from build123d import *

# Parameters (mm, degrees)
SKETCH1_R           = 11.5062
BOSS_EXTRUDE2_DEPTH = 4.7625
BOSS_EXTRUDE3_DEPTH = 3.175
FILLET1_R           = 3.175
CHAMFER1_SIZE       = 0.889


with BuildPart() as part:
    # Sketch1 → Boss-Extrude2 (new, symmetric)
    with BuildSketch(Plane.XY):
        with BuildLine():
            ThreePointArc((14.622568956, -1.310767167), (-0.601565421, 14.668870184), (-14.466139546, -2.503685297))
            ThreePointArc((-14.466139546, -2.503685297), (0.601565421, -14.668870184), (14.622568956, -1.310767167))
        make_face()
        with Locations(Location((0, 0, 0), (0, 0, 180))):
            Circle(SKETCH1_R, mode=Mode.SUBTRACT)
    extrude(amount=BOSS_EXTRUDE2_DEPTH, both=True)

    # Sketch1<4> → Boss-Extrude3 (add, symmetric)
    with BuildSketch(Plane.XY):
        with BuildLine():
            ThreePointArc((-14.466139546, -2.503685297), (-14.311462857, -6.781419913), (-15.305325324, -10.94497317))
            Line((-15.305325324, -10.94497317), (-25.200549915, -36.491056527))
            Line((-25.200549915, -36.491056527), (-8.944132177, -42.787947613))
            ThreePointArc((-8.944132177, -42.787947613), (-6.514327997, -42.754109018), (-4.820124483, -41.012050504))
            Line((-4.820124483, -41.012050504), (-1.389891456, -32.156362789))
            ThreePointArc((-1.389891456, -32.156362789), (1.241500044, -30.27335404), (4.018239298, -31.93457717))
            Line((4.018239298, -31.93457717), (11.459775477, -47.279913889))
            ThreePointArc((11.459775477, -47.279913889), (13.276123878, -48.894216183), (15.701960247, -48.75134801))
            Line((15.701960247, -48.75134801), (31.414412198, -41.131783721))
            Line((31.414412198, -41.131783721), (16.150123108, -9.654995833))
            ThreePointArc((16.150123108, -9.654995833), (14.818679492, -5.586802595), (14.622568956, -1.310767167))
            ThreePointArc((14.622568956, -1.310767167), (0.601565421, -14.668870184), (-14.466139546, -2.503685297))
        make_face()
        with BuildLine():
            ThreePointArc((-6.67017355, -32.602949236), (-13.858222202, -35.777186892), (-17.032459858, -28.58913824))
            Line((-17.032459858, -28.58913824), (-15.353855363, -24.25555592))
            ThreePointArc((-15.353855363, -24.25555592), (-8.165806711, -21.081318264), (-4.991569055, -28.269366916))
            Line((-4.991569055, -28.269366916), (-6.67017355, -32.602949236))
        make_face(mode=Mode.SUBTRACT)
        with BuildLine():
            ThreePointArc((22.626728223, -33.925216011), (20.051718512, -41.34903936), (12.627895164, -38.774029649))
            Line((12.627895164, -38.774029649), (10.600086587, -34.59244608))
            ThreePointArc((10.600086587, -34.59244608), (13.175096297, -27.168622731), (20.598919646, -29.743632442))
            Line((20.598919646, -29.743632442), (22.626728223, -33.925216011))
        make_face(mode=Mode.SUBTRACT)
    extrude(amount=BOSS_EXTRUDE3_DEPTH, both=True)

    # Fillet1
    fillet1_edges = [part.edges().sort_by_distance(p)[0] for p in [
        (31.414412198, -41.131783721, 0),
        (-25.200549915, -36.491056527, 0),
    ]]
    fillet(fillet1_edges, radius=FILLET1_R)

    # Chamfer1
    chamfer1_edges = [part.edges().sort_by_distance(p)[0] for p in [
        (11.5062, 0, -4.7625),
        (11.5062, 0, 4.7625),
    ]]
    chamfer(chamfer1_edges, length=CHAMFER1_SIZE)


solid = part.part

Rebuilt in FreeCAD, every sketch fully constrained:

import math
import FreeCAD as App
import Part
import Sketcher
from FreeCAD import Vector
Q = App.Units.Quantity


def edges_at(feature, points):
    """Names of the edges that pass closest to the given points."""
    edges = feature.Shape.Edges
    near = lambda p: min(range(len(edges)), key=lambda i: edges[i].distToShape(Part.Vertex(*p))[0])
    return sorted({f"Edge{near(p) + 1}" for p in points})

doc = App.newDocument("Part")
body = doc.addObject("PartDesign::Body", "Body")

sketch1 = doc.addObject("Sketcher::SketchObject", "Sketch")
body.addObject(sketch1)
sketch1.AttachmentSupport = (doc.XY_Plane, [""])
sketch1.MapMode = "FlatFace"
sketch1.addGeometry([
    Part.ArcOfCircle(Part.Circle(Vector(0, 0, 0), Vector(0, 0, 1), 15), math.radians(-5), math.radians(190)),
    Part.ArcOfCircle(Part.Circle(Vector(0, 0, 0), Vector(0, 0, 1), 15), math.radians(-170), math.radians(-5)),
    Part.Circle(Vector(0, 0, 0), Vector(0, 0, 1), 12),
], False)
sketch1.addConstraint([
    Sketcher.Constraint("Tangent", 0, 1, 1, 2),
    Sketcher.Constraint("Coincident", 1, 1, 0, 2),
    Sketcher.Constraint("Coincident", 0, 3, -1, 1),
    Sketcher.Constraint("Coincident", 2, 3, -1, 1),
    Sketcher.Constraint("Diameter", 2, Q("0.906 in")),
    Sketcher.Constraint("Radius", 0, Q("0.578 in")),
    Sketcher.Constraint("DistanceX", -1, 1, 0, 1, Q("14.622569 mm")),
    Sketcher.Constraint("DistanceX", 1, 1, -1, 1, Q("14.46614 mm")),
])
pad1 = doc.addObject("PartDesign::Pad", "Pad")
body.addObject(pad1)
pad1.Profile = sketch1
pad1.Length = Q("0.375 in")
pad1.Midplane = True

sketch2 = doc.addObject("Sketcher::SketchObject", "Sketch001")
body.addObject(sketch2)
sketch2.AttachmentSupport = (doc.XY_Plane, [""])
sketch2.MapMode = "FlatFace"
sketch2.addGeometry([
    Part.ArcOfCircle(Part.Circle(Vector(-30.108591, -5.210957, 0), Vector(0, 0, 1), 15.875), math.radians(-21.173778), math.radians(9.819033)),
    Part.LineSegment(Vector(-15.305325, -10.944973, 0), Vector(-25.20055, -36.491057, 0)),
    Part.LineSegment(Vector(-25.20055, -36.491057, 0), Vector(-8.944132, -42.787948, 0)),
    Part.ArcOfCircle(Part.Circle(Vector(-7.770077, -39.837995, 0), Vector(0, 0, 1), 3.175), math.radians(-111.702124), math.radians(-21.702124)),
    Part.LineSegment(Vector(-4.820124, -41.012051, 0), Vector(-1.389891, -32.156363, 0)),
    Part.ArcOfCircle(Part.Circle(Vector(1.362442, -33.222474, 0), Vector(0, 0, 1), 2.951599), math.radians(25.870507), math.radians(158.826222)),
    Part.LineSegment(Vector(4.018239, -31.934577, 0), Vector(11.459775, -47.279914, 0)),
    Part.ArcOfCircle(Part.Circle(Vector(14.316585, -45.894539, 0), Vector(0, 0, 1), 3.175), math.radians(-154.129493), math.radians(-64.129493)),
    Part.LineSegment(Vector(15.70196, -48.751348, 0), Vector(31.414412, -41.131784, 0)),
    Part.LineSegment(Vector(31.414412, -41.131784, 0), Vector(16.150123, -9.654996, 0)),
    Part.ArcOfCircle(Part.Circle(Vector(30.43417, -2.728119, 0), Vector(0, 0, 1), 15.875), math.radians(174.877697), math.radians(205.870507)),
    Part.ArcOfCircle(Part.Circle(Vector(0, 0, 0), Vector(0, 0, 1), 14.6812), math.radians(-170.180967), math.radians(-5.122303)),
    Part.LineSegment(Vector(20.59892, -29.743632, 0), Vector(22.626728, -33.925216, 0)),
    Part.ArcOfCircle(Part.Circle(Vector(17.627312, -36.349623, 0), Vector(0, 0, 1), 5.55625), math.radians(-154.129493), math.radians(25.870507)),
    Part.LineSegment(Vector(12.627895, -38.77403, 0), Vector(10.600087, -34.592446, 0)),
    Part.ArcOfCircle(Part.Circle(Vector(15.599503, -32.168039, 0), Vector(0, 0, 1), 5.55625), math.radians(25.870507), math.radians(205.870507)),
    Part.LineSegment(Vector(-4.991569, -28.269367, 0), Vector(-6.670174, -32.602949, 0)),
    Part.ArcOfCircle(Part.Circle(Vector(-11.851317, -30.596044, 0), Vector(0, 0, 1), 5.55625), math.radians(158.826222), math.radians(338.826222)),
    Part.LineSegment(Vector(-17.03246, -28.589138, 0), Vector(-15.353855, -24.255556, 0)),
    Part.ArcOfCircle(Part.Circle(Vector(-10.172712, -26.262461, 0), Vector(0, 0, 1), 5.55625), math.radians(-21.173778), math.radians(158.826222)),
], False)
sketch2.addConstraint([
    Sketcher.Constraint("Coincident", 0, 1, 1, 1),
    Sketcher.Constraint("Coincident", 1, 2, 2, 1),
    Sketcher.Constraint("Coincident", 2, 2, 3, 1),
    Sketcher.Constraint("Coincident", 3, 2, 4, 1),
    Sketcher.Constraint("Coincident", 4, 2, 5, 2),
    Sketcher.Constraint("Coincident", 5, 1, 6, 1),
    Sketcher.Constraint("Coincident", 6, 2, 7, 1),
    Sketcher.Constraint("Coincident", 7, 2, 8, 1),
    Sketcher.Constraint("Coincident", 8, 2, 9, 1),
    Sketcher.Constraint("Coincident", 9, 2, 10, 2),
    Sketcher.Constraint("Coincident", 10, 1, 11, 2),
    Sketcher.Constraint("Coincident", 11, 1, 0, 2),
    Sketcher.Constraint("Coincident", 12, 2, 13, 2),
    Sketcher.Constraint("Coincident", 13, 1, 14, 1),
    Sketcher.Constraint("Coincident", 14, 2, 15, 2),
    Sketcher.Constraint("Coincident", 15, 1, 12, 1),
    Sketcher.Constraint("Coincident", 16, 2, 17, 2),
    Sketcher.Constraint("Coincident", 17, 1, 18, 1),
    Sketcher.Constraint("Coincident", 18, 2, 19, 2),
    Sketcher.Constraint("Coincident", 19, 1, 16, 1),
    Sketcher.Constraint("Coincident", 11, 3, -1, 1),
    Sketcher.Constraint("Radius", 0, Q("0.625 in")),
    Sketcher.Constraint("Radius", 3, Q("0.125 in")),
    Sketcher.Constraint("Radius", 7, Q("0.125 in")),
    Sketcher.Constraint("Radius", 10, Q("0.625 in")),
    Sketcher.Constraint("Radius", 11, Q("0.578 in")),
    Sketcher.Constraint("Radius", 13, Q("0.21875 in")),
    Sketcher.Constraint("Radius", 15, Q("0.21875 in")),
    Sketcher.Constraint("Radius", 17, Q("0.21875 in")),
    Sketcher.Constraint("Radius", 19, Q("0.21875 in")),
    Sketcher.Constraint("Radius", 5, Q("2.951599 mm")),
    Sketcher.Constraint("Distance", 8, Q("0.6875 in")),
    Sketcher.Constraint("DistanceY", 7, 3, 5, 3, Q("0.4989002 in")),
    Sketcher.Constraint("DistanceY", 7, 3, 15, 3, Q("13.726499 mm")),
    Sketcher.Constraint("DistanceX", 17, 3, 7, 3, Q("26.167902 mm")),
    Sketcher.Constraint("DistanceY", 5, 3, 0, 1, Q("22.277501 mm")),
    Sketcher.Constraint("DistanceY", 4, 2, 19, 3, Q("5.893901 mm")),
    Sketcher.Constraint("DistanceX", 13, 3, 8, 2, Q("13.787101 mm")),
    Sketcher.Constraint("DistanceX", 10, 1, 10, 3, Q("15.811601 mm")),
    Sketcher.Constraint("Distance", 1, Q("27.395581 mm")),
    Sketcher.Constraint("DistanceX", 0, 3, -1, 1, Q("30.108591 mm")),
    Sketcher.Constraint("DistanceY", 7, 3, -1, 1, Q("45.894539 mm")),
    Sketcher.Constraint("DistanceX", -1, 1, 10, 3, Q("30.43417 mm")),
    Sketcher.Constraint("DistanceX", -1, 1, 13, 3, Q("17.627312 mm")),
    Sketcher.Constraint("DistanceY", 19, 3, -1, 1, Q("26.262461 mm")),
    Sketcher.Constraint("DistanceX", 1, 2, -1, 1, Q("25.20055 mm")),
    Sketcher.Constraint("DistanceY", 3, 2, -1, 1, Q("41.012051 mm")),
    Sketcher.Constraint("DistanceX", 4, 2, -1, 1, Q("1.389891 mm")),
    Sketcher.Constraint("DistanceX", -1, 1, 5, 1, Q("4.018239 mm")),
    Sketcher.Constraint("DistanceX", -1, 1, 7, 2, Q("15.70196 mm")),
    Sketcher.Constraint("DistanceY", 7, 2, -1, 1, Q("48.751348 mm")),
    Sketcher.Constraint("DistanceX", 11, 1, -1, 1, Q("14.46614 mm")),
    Sketcher.Constraint("DistanceX", -1, 1, 12, 2, Q("22.626728 mm")),
    Sketcher.Constraint("DistanceY", 13, 1, -1, 1, Q("38.77403 mm")),
    Sketcher.Constraint("DistanceX", -1, 1, 15, 1, Q("20.59892 mm")),
    Sketcher.Constraint("DistanceY", 16, 2, -1, 1, Q("32.602949 mm")),
    Sketcher.Constraint("DistanceX", 17, 1, -1, 1, Q("17.03246 mm")),
    Sketcher.Constraint("DistanceY", 17, 1, -1, 1, Q("28.589138 mm")),
    Sketcher.Constraint("DistanceX", 19, 1, -1, 1, Q("4.991569 mm")),
    Sketcher.Constraint("DistanceX", 3, 3, 5, 3, Q("9.132519 mm")),
    Sketcher.Constraint("DistanceY", 3, 3, 5, 3, Q("6.615521 mm")),
    Sketcher.Constraint("DistanceY", 13, 3, 5, 3, Q("3.127149 mm")),
    Sketcher.Constraint("DistanceX", 15, 3, 13, 3, Q("2.027809 mm")),
    Sketcher.Constraint("DistanceX", 19, 3, 2, 2, Q("1.22858 mm")),
    Sketcher.Constraint("DistanceY", 2, 2, 1, 2, Q("6.296891 mm")),
    Sketcher.Constraint("DistanceX", 6, 2, 7, 3, Q("2.856809 mm")),
    Sketcher.Constraint("DistanceX", 15, 3, 9, 2, Q("0.55062 mm")),
    Sketcher.Constraint("DistanceX", 14, 2, 13, 1, Q("2.027809 mm")),
    Sketcher.Constraint("DistanceX", 18, 2, 17, 3, Q("3.502539 mm")),
])
pad2 = doc.addObject("PartDesign::Pad", "Pad001")
body.addObject(pad2)
pad2.Profile = sketch2
pad2.Length = Q("0.25 in")
pad2.Midplane = True
doc.recompute()

fillet = doc.addObject("PartDesign::Fillet", "Fillet")
body.addObject(fillet)
fillet.Base = (pad2, edges_at(pad2, [(31.414, -41.132, 0), (-25.201, -36.491, 0)]))
fillet.Radius = Q("0.125 in")
doc.recompute()

chamfer = doc.addObject("PartDesign::Chamfer", "Chamfer")
body.addObject(chamfer)
chamfer.Base = (fillet, edges_at(fillet, [(11.506, 0, -4.763), (11.506, 0, 4.763)]))
chamfer.Size = Q("0.035 in")

doc.recompute()
